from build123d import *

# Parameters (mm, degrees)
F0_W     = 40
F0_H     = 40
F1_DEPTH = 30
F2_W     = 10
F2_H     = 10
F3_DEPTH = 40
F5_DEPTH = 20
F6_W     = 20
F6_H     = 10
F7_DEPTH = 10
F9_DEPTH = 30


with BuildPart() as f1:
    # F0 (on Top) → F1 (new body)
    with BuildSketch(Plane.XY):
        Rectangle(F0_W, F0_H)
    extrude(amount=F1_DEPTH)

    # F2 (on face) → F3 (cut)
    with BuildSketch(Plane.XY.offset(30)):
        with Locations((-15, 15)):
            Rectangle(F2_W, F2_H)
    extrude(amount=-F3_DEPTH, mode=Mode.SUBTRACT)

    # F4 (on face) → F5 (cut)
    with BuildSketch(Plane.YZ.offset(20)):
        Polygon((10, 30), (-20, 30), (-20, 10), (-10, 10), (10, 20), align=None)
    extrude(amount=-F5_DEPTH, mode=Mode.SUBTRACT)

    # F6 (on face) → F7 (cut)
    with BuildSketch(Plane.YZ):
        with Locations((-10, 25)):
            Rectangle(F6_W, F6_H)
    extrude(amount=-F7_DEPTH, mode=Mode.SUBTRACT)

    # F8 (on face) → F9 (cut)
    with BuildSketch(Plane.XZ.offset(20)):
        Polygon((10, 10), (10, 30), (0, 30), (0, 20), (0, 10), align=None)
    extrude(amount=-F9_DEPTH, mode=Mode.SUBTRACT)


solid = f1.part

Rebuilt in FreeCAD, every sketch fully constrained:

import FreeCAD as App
import Part
import Sketcher

V = App.Vector


def add_polygon(sketch, points):
    """Adds a closed chain of lines whose ends are joined by coincident constraints."""
    first, n = sketch.GeometryCount, len(points)
    for a, b in zip(points, points[1:] + points[:1]):
        sketch.addGeometry(Part.LineSegment(App.Vector(*a, 0), App.Vector(*b, 0)), False)
    for i in range(n):
        sketch.addConstraint(Sketcher.Constraint("Coincident", first + i, 2, first + (i + 1) % n, 1))

doc = App.newDocument("Part")
body = doc.addObject("PartDesign::Body", "Body")

# Sketch on XY plane
sketch1 = body.newObject("Sketcher::SketchObject", "Sketch")
sketch1.AttachmentSupport = (doc.getObject("XY_Plane"), [""])
sketch1.MapMode = "FlatFace"
add_polygon(sketch1, [(-20, 20), (-20, -20), (20, -20), (20, 20)])  # lines 0-3
sketch1.addConstraint([
    Sketcher.Constraint("Vertical", 0),
    Sketcher.Constraint("Horizontal", 1),
    Sketcher.Constraint("Vertical", 2),
    Sketcher.Constraint("Horizontal", 3),
    Sketcher.Constraint("Symmetric", 0, 2, 2, 2, -1, 1),
    Sketcher.Constraint("Equal", 3, 0),
    Sketcher.Constraint("DistanceX", 1, 1, 1, 2, 40.0),
])
pad1 = body.newObject("PartDesign::Pad", "Pad")
pad1.Profile = sketch1
pad1.Length = 30

# Sketch on XY plane
sketch2 = body.newObject("Sketcher::SketchObject", "Sketch001")
sketch2.AttachmentSupport = (doc.getObject("XY_Plane"), [""])
sketch2.MapMode = "FlatFace"
sketch2.AttachmentOffset = App.Placement(V(0, 0, 30), App.Rotation())
add_polygon(sketch2, [(-20, 20), (-20, 10), (-10, 10), (-10, 20)])  # lines 0-3
sketch2.addConstraint([
    Sketcher.Constraint("Vertical", 0),
    Sketcher.Constraint("Horizontal", 1),
    Sketcher.Constraint("Vertical", 2),
    Sketcher.Constraint("Horizontal", 3),
    Sketcher.Constraint("Equal", 3, 0),
    Sketcher.Constraint("DistanceX", 1, 1, 1, 2, 10.0),
    Sketcher.Constraint("DistanceX", 0, 2, -1, 1, 20.0),
    Sketcher.Constraint("DistanceY", -1, 1, 0, 2, 10.0),
])
pocket1 = body.newObject("PartDesign::Pocket", "Pocket")
pocket1.Profile = sketch2
pocket1.Length = 40

# Sketch on YZ plane
sketch3 = body.newObject("Sketcher::SketchObject", "Sketch002")
sketch3.AttachmentSupport = (doc.getObject("YZ_Plane"), [""])
sketch3.MapMode = "FlatFace"
sketch3.AttachmentOffset = App.Placement(V(0, 0, 20), App.Rotation())
add_polygon(sketch3, [(10, 30), (-20, 30), (-20, 10), (-10, 10), (10, 20)])  # lines 0-4
sketch3.addConstraint([
    Sketcher.Constraint("Horizontal", 0),
    Sketcher.Constraint("Vertical", 1),
    Sketcher.Constraint("Horizontal", 2),
    Sketcher.Constraint("Vertical", 4),
    Sketcher.Constraint("Equal", 2, 4),
    Sketcher.Constraint("DistanceX", 0, 2, 0, 1, 30.0),
    Sketcher.Constraint("DistanceX", 2, 1, 2, 2, 10.0),
    Sketcher.Constraint("DistanceY", 1, 2, 1, 1, 20.0),
    Sketcher.Constraint("DistanceX", 0, 2, -1, 1, 20.0),
    Sketcher.Constraint("DistanceY", -1, 1, 0, 2, 30.0),
])
pocket2 = body.newObject("PartDesign::Pocket", "Pocket001")
pocket2.Profile = sketch3
pocket2.Length = 20

# Sketch on YZ plane
sketch4 = body.newObject("Sketcher::SketchObject", "Sketch003")
sketch4.AttachmentSupport = (doc.getObject("YZ_Plane"), [""])
sketch4.MapMode = "FlatFace"
add_polygon(sketch4, [(-20, 30), (-20, 20), (0, 20), (0, 30)])  # lines 0-3
sketch4.addConstraint([
    Sketcher.Constraint("Vertical", 0),
    Sketcher.Constraint("Horizontal", 1),
    Sketcher.Constraint("Vertical", 2),
    Sketcher.Constraint("Horizontal", 3),
    Sketcher.Constraint("PointOnObject", 1, 2, -2),
    Sketcher.Constraint("DistanceX", 1, 1, 1, 2, 20.0),
    Sketcher.Constraint("DistanceY", 0, 2, 0, 1, 10.0),
    Sketcher.Constraint("DistanceY", -1, 1, 0, 2, 20.0),
])
pocket3 = body.newObject("PartDesign::Pocket", "Pocket002")
pocket3.Profile = sketch4
pocket3.Length = 10

# Sketch on XZ plane
sketch5 = body.newObject("Sketcher::SketchObject", "Sketch004")
sketch5.AttachmentSupport = (doc.getObject("XZ_Plane"), [""])
sketch5.MapMode = "FlatFace"
sketch5.AttachmentOffset = App.Placement(V(0, 0, 20), App.Rotation())
add_polygon(sketch5, [(10, 10), (10, 30), (0, 30), (0, 10)])  # lines 0-3
sketch5.addConstraint([
    Sketcher.Constraint("Vertical", 0),
    Sketcher.Constraint("Horizontal", 1),
    Sketcher.Constraint("Vertical", 2),
    Sketcher.Constraint("Horizontal", 3),
    Sketcher.Constraint("PointOnObject", 1, 2, -2),
    Sketcher.Constraint("DistanceX", 1, 2, 1, 1, 10.0),
    Sketcher.Constraint("DistanceY", 0, 1, 0, 2, 20.0),
    Sketcher.Constraint("DistanceY", -1, 1, 0, 2, 30.0),
])
pocket4 = body.newObject("PartDesign::Pocket", "Pocket003")
pocket4.Profile = sketch5
pocket4.Length = 30

doc.recompute()
